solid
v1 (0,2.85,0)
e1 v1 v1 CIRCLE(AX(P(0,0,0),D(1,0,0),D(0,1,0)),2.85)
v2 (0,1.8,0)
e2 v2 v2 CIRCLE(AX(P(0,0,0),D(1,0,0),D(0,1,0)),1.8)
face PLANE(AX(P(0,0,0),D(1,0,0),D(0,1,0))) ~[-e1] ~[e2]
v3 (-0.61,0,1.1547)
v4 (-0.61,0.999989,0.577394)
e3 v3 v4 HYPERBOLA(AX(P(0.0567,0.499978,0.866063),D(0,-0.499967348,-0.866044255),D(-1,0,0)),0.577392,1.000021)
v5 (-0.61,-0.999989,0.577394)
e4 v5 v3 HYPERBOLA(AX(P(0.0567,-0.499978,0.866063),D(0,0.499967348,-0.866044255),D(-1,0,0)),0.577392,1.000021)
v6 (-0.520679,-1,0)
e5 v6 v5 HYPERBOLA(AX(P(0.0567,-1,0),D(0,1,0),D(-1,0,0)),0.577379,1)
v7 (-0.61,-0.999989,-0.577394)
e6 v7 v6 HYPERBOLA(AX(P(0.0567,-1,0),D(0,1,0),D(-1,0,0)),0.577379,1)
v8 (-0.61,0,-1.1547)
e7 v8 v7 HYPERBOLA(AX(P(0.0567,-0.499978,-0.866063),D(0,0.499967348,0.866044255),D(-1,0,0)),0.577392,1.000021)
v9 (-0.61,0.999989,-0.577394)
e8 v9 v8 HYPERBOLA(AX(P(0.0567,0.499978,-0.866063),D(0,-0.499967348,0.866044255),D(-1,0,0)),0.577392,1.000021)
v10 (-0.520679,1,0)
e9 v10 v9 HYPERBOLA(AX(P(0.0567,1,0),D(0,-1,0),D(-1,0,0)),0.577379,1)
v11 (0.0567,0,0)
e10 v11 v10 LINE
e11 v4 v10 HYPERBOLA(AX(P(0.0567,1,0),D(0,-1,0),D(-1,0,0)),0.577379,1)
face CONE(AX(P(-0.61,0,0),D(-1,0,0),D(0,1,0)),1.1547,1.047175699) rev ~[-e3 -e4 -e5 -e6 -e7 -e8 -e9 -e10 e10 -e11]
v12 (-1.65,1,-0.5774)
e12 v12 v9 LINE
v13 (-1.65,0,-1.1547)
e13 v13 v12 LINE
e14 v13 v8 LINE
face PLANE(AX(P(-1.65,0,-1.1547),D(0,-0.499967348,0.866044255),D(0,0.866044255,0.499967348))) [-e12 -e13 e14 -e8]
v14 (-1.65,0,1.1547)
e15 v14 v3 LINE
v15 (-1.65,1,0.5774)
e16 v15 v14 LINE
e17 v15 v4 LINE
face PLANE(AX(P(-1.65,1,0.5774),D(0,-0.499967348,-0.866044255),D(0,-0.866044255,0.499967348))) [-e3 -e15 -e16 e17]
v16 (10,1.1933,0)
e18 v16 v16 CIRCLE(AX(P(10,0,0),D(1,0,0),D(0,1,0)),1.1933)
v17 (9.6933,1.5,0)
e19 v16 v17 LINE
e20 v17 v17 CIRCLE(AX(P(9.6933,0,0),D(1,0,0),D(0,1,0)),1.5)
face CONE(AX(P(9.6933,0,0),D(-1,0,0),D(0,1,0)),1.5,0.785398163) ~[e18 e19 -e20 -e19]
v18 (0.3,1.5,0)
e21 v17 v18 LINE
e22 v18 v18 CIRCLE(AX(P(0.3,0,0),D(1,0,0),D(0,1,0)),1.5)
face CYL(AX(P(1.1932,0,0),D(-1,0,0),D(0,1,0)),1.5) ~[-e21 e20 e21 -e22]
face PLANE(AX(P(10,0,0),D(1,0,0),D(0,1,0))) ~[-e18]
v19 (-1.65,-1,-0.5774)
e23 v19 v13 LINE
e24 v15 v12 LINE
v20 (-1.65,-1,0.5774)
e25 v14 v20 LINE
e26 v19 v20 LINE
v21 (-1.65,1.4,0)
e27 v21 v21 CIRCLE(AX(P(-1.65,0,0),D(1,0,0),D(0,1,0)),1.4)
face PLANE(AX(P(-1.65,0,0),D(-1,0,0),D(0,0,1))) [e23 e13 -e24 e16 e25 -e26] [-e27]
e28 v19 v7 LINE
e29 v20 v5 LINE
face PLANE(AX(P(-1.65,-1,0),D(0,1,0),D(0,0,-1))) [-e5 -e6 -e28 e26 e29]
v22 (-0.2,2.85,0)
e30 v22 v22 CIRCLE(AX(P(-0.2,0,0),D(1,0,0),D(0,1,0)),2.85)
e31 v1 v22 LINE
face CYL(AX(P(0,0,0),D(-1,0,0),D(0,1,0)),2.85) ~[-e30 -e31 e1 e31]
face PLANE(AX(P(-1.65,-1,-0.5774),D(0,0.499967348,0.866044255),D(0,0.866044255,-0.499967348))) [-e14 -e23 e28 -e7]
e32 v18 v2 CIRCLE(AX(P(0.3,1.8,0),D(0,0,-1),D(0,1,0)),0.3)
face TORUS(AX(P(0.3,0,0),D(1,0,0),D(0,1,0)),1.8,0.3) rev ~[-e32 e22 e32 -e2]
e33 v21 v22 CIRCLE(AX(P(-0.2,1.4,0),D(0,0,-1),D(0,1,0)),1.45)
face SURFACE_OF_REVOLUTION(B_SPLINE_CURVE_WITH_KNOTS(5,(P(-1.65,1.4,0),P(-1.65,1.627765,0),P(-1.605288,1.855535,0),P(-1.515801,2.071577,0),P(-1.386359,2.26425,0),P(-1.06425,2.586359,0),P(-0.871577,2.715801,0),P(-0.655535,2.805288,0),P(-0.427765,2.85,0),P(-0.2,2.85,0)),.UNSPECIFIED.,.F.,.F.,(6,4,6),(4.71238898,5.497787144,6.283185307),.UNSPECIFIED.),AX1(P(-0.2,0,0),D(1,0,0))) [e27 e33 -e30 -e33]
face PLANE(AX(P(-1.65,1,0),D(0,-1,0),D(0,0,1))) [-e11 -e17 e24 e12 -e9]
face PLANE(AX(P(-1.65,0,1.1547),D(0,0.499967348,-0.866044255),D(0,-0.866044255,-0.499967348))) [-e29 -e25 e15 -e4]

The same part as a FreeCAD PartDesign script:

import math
import FreeCAD as App
import Part
import Sketcher


def edges_at(feature, points):
    """Names of the edges that pass closest to the given points."""
    edges = feature.Shape.Edges
    near = lambda p: min(range(len(edges)), key=lambda i: edges[i].distToShape(Part.Vertex(*p))[0])
    return sorted({f"Edge{near(p) + 1}" for p in points})

doc = App.newDocument("Part")
params = doc.addObject("Spreadsheet::Sheet", "Params")
for row, (alias, value) in enumerate([
    ("sketch1_width", "10 mm"),
    ("sketch1_width2", "1.65 mm"),
    ("sketch1_width3", "1.04 mm"),
    ("sketch1_height", "1.5 mm"),
    ("sketch1_height2", "1.35 mm"),
    ("revolution_angle", "360 deg"),
    ("fillet_radius", "1.45 mm"),
    ("chamfer_size", "0.3067 mm"),
    ("chamfer_size2", "0.3067 mm"),
    ("fillet2_radius", "0.3 mm"),
], start=1):
    params.set(f"A{row}", alias)
    params.set(f"B{row}", "=" + value)
    params.setAlias(f"B{row}", alias)

body = doc.addObject("PartDesign::Body", "Body")

# Sketch on XY plane
sketch1 = body.newObject("Sketcher::SketchObject", "Sketch")
sketch1.AttachmentSupport = (doc.getObject("XY_Plane"), [""])
sketch1.MapMode = "FlatFace"
sketch1.addGeometry([
    Part.LineSegment(App.Vector(0.1, 0, 0), App.Vector(10, 0, 0)),  # 0
    Part.LineSegment(App.Vector(10, 0, 0), App.Vector(10, 1.5, 0)),  # 1
    Part.LineSegment(App.Vector(10, 1.5, 0), App.Vector(0, 1.5, 0)),  # 2
    Part.LineSegment(App.Vector(0, 1.5, 0), App.Vector(0, 2.9, 0)),  # 3
    Part.LineSegment(App.Vector(0, 2.9, 0), App.Vector(-1.6, 2.9, 0)),  # 4
    Part.LineSegment(App.Vector(-1.6, 2.9, 0), App.Vector(-1.6, 1.2, 0)),  # 5
    Part.LineSegment(App.Vector(-1.6, 1.2, 0), App.Vector(-0.6, 1.2, 0)),  # 6
    Part.LineSegment(App.Vector(-0.6, 1.2, 0), App.Vector(0.1, 0, 0)),  # 7
], False)
sketch1.addConstraint([
    Sketcher.Constraint("Coincident", 0, 2, 1, 1),
    Sketcher.Constraint("Coincident", 1, 2, 2, 1),
    Sketcher.Constraint("Coincident", 2, 2, 3, 1),
    Sketcher.Constraint("Coincident", 3, 2, 4, 1),
    Sketcher.Constraint("Coincident", 4, 2, 5, 1),
    Sketcher.Constraint("Coincident", 5, 2, 6, 1),
    Sketcher.Constraint("Coincident", 6, 2, 7, 1),
    Sketcher.Constraint("Coincident", 7, 2, 0, 1),
    Sketcher.Constraint("Horizontal", 0),
    Sketcher.Constraint("Vertical", 1),
    Sketcher.Constraint("Horizontal", 2),
    Sketcher.Constraint("Vertical", 3),
    Sketcher.Constraint("Horizontal", 4),
    Sketcher.Constraint("Vertical", 5),
    Sketcher.Constraint("Horizontal", 6),
    Sketcher.Constraint("PointOnObject", 0, 2, -1),
    Sketcher.Constraint("PointOnObject", 2, 2, -2),
    Sketcher.Constraint("DistanceX", 2, 2, 2, 1, 10.0),
    Sketcher.Constraint("DistanceX", 4, 2, 4, 1, 1.65),
    Sketcher.Constraint("DistanceX", 6, 1, 6, 2, 1.04),
    Sketcher.Constraint("DistanceY", 1, 1, 1, 2, 1.5),
    Sketcher.Constraint("DistanceY", 3, 1, 3, 2, 1.35),
    Sketcher.Constraint("DistanceX", 0, 1, 0, 2, 9.9433),
    Sketcher.Constraint("DistanceY", 5, 2, 5, 1, 1.6953),
])
sketch1.setExpression("Constraints[17]", "Params.sketch1_width")
sketch1.setExpression("Constraints[18]", "Params.sketch1_width2")
sketch1.setExpression("Constraints[19]", "Params.sketch1_width3")
sketch1.setExpression("Constraints[20]", "Params.sketch1_height")
sketch1.setExpression("Constraints[21]", "Params.sketch1_height2")
revolution = body.newObject("PartDesign::Revolution", "Revolution")
revolution.Profile = sketch1
revolution.ReferenceAxis = (sketch1, ["H_Axis"])
revolution.setExpression("Angle", "Params.revolution_angle")

# Sketch on YZ plane
sketch2 = body.newObject("Sketcher::SketchObject", "Sketch001")
sketch2.AttachmentSupport = (doc.getObject("YZ_Plane"), [""])
sketch2.MapMode = "FlatFace"
sketch2.AttachmentOffset = App.Placement(App.Vector(0, 0, -1.65), App.Rotation())
sketch2.addGeometry([
    Part.LineSegment(App.Vector(1, 0.6, 0), App.Vector(0, 1.2, 0)),  # 0
    Part.ArcOfCircle(Part.Circle(App.Vector(0, 0, 0), App.Vector(0, 0, 1), 1.2), math.radians(30), math.radians(90)),  # 1
    Part.ArcOfCircle(Part.Circle(App.Vector(0, 0, 0), App.Vector(0, 0, 1), 1.2), math.radians(90), math.radians(150)),  # 2
    Part.LineSegment(App.Vector(0, 1.2, 0), App.Vector(-1, 0.6, 0)),  # 3
    Part.ArcOfCircle(Part.Circle(App.Vector(0, 0, 0), App.Vector(0, 0, 1), 1.2), math.radians(-30), math.radians(30)),  # 4
    Part.LineSegment(App.Vector(1, 0.6, 0), App.Vector(1, -0.6, 0)),  # 5
    Part.LineSegment(App.Vector(-1, 0.6, 0), App.Vector(-1, -0.6, 0)),  # 6
    Part.ArcOfCircle(Part.Circle(App.Vector(0, 0, 0), App.Vector(0, 0, 1), 1.2), math.radians(150), math.radians(210)),  # 7
    Part.LineSegment(App.Vector(-1, -0.6, 0), App.Vector(0, -1.2, 0)),  # 8
    Part.ArcOfCircle(Part.Circle(App.Vector(0, 0, 0), App.Vector(0, 0, 1), 1.2), math.radians(-150), math.radians(-90)),  # 9
    Part.ArcOfCircle(Part.Circle(App.Vector(0, 0, 0), App.Vector(0, 0, 1), 1.2), math.radians(-90), math.radians(-30)),  # 10
    Part.LineSegment(App.Vector(0, -1.2, 0), App.Vector(1, -0.6, 0)),  # 11
], False)
sketch2.addConstraint([
    Sketcher.Constraint("Coincident", 0, 1, 1, 1),
    Sketcher.Constraint("Coincident", 1, 2, 0, 2),
    Sketcher.Constraint("Coincident", 2, 1, 3, 1),
    Sketcher.Constraint("Coincident", 3, 2, 2, 2),
    Sketcher.Constraint("Coincident", 4, 1, 5, 2),
    Sketcher.Constraint("Coincident", 5, 1, 4, 2),
    Sketcher.Constraint("Coincident", 6, 1, 7, 1),
    Sketcher.Constraint("Coincident", 7, 2, 6, 2),
    Sketcher.Constraint("Coincident", 8, 1, 9, 1),
    Sketcher.Constraint("Coincident", 9, 2, 8, 2),
    Sketcher.Constraint("Coincident", 10, 1, 11, 1),
    Sketcher.Constraint("Coincident", 11, 2, 10, 2),
    Sketcher.Constraint("Vertical", 5),
    Sketcher.Constraint("Vertical", 6),
    Sketcher.Constraint("Coincident", 1, 3, -1, 1),
    Sketcher.Constraint("Coincident", 2, 3, -1, 1),
    Sketcher.Constraint("Coincident", 4, 3, -1, 1),
    Sketcher.Constraint("Coincident", 7, 3, -1, 1),
    Sketcher.Constraint("Coincident", 9, 3, -1, 1),
    Sketcher.Constraint("Coincident", 10, 3, -1, 1),
    Sketcher.Constraint("Coincident", 2, 1, 1, 2),
    Sketcher.Constraint("Coincident", 5, 1, 0, 1),
    Sketcher.Constraint("Coincident", 6, 1, 3, 2),
    Sketcher.Constraint("Coincident", 8, 1, 7, 2),
    Sketcher.Constraint("Coincident", 10, 1, 9, 2),
    Sketcher.Constraint("PointOnObject", 1, 2, -2),
    Sketcher.Constraint("PointOnObject", 9, 2, -2),
    Sketcher.Constraint("Parallel", 0, 8),
    Sketcher.Constraint("Parallel", 3, 11),
    Sketcher.Constraint("DistanceX", -1, 1, 0, 1, 1.0),
    Sketcher.Constraint("Radius", 1, 1.1547),
])
pad1 = body.newObject("PartDesign::Pad", "Pad")
pad1.Profile = sketch2
pad1.Type = "UpToFirst"
doc.recompute()

fillet = body.newObject("PartDesign::Fillet", "Fillet")
fillet.Base = (pad1, edges_at(pad1, [(-1.65, -2.85, 0)]))
fillet.setExpression("Radius", "Params.fillet_radius")
doc.recompute()

chamfer = body.newObject("PartDesign::Chamfer", "Chamfer")
chamfer.Base = (fillet, edges_at(fillet, [(10, -1.5, 0)]))
chamfer.ChamferType = "Two distances"
chamfer.setExpression("Size", "Params.chamfer_size")
chamfer.setExpression("Size2", "Params.chamfer_size2")
doc.recompute()

fillet2 = body.newObject("PartDesign::Fillet", "Fillet001")
fillet2.Base = (chamfer, edges_at(chamfer, [(0, -1.5, 0)]))
fillet2.setExpression("Radius", "Params.fillet2_radius")

doc.recompute()
